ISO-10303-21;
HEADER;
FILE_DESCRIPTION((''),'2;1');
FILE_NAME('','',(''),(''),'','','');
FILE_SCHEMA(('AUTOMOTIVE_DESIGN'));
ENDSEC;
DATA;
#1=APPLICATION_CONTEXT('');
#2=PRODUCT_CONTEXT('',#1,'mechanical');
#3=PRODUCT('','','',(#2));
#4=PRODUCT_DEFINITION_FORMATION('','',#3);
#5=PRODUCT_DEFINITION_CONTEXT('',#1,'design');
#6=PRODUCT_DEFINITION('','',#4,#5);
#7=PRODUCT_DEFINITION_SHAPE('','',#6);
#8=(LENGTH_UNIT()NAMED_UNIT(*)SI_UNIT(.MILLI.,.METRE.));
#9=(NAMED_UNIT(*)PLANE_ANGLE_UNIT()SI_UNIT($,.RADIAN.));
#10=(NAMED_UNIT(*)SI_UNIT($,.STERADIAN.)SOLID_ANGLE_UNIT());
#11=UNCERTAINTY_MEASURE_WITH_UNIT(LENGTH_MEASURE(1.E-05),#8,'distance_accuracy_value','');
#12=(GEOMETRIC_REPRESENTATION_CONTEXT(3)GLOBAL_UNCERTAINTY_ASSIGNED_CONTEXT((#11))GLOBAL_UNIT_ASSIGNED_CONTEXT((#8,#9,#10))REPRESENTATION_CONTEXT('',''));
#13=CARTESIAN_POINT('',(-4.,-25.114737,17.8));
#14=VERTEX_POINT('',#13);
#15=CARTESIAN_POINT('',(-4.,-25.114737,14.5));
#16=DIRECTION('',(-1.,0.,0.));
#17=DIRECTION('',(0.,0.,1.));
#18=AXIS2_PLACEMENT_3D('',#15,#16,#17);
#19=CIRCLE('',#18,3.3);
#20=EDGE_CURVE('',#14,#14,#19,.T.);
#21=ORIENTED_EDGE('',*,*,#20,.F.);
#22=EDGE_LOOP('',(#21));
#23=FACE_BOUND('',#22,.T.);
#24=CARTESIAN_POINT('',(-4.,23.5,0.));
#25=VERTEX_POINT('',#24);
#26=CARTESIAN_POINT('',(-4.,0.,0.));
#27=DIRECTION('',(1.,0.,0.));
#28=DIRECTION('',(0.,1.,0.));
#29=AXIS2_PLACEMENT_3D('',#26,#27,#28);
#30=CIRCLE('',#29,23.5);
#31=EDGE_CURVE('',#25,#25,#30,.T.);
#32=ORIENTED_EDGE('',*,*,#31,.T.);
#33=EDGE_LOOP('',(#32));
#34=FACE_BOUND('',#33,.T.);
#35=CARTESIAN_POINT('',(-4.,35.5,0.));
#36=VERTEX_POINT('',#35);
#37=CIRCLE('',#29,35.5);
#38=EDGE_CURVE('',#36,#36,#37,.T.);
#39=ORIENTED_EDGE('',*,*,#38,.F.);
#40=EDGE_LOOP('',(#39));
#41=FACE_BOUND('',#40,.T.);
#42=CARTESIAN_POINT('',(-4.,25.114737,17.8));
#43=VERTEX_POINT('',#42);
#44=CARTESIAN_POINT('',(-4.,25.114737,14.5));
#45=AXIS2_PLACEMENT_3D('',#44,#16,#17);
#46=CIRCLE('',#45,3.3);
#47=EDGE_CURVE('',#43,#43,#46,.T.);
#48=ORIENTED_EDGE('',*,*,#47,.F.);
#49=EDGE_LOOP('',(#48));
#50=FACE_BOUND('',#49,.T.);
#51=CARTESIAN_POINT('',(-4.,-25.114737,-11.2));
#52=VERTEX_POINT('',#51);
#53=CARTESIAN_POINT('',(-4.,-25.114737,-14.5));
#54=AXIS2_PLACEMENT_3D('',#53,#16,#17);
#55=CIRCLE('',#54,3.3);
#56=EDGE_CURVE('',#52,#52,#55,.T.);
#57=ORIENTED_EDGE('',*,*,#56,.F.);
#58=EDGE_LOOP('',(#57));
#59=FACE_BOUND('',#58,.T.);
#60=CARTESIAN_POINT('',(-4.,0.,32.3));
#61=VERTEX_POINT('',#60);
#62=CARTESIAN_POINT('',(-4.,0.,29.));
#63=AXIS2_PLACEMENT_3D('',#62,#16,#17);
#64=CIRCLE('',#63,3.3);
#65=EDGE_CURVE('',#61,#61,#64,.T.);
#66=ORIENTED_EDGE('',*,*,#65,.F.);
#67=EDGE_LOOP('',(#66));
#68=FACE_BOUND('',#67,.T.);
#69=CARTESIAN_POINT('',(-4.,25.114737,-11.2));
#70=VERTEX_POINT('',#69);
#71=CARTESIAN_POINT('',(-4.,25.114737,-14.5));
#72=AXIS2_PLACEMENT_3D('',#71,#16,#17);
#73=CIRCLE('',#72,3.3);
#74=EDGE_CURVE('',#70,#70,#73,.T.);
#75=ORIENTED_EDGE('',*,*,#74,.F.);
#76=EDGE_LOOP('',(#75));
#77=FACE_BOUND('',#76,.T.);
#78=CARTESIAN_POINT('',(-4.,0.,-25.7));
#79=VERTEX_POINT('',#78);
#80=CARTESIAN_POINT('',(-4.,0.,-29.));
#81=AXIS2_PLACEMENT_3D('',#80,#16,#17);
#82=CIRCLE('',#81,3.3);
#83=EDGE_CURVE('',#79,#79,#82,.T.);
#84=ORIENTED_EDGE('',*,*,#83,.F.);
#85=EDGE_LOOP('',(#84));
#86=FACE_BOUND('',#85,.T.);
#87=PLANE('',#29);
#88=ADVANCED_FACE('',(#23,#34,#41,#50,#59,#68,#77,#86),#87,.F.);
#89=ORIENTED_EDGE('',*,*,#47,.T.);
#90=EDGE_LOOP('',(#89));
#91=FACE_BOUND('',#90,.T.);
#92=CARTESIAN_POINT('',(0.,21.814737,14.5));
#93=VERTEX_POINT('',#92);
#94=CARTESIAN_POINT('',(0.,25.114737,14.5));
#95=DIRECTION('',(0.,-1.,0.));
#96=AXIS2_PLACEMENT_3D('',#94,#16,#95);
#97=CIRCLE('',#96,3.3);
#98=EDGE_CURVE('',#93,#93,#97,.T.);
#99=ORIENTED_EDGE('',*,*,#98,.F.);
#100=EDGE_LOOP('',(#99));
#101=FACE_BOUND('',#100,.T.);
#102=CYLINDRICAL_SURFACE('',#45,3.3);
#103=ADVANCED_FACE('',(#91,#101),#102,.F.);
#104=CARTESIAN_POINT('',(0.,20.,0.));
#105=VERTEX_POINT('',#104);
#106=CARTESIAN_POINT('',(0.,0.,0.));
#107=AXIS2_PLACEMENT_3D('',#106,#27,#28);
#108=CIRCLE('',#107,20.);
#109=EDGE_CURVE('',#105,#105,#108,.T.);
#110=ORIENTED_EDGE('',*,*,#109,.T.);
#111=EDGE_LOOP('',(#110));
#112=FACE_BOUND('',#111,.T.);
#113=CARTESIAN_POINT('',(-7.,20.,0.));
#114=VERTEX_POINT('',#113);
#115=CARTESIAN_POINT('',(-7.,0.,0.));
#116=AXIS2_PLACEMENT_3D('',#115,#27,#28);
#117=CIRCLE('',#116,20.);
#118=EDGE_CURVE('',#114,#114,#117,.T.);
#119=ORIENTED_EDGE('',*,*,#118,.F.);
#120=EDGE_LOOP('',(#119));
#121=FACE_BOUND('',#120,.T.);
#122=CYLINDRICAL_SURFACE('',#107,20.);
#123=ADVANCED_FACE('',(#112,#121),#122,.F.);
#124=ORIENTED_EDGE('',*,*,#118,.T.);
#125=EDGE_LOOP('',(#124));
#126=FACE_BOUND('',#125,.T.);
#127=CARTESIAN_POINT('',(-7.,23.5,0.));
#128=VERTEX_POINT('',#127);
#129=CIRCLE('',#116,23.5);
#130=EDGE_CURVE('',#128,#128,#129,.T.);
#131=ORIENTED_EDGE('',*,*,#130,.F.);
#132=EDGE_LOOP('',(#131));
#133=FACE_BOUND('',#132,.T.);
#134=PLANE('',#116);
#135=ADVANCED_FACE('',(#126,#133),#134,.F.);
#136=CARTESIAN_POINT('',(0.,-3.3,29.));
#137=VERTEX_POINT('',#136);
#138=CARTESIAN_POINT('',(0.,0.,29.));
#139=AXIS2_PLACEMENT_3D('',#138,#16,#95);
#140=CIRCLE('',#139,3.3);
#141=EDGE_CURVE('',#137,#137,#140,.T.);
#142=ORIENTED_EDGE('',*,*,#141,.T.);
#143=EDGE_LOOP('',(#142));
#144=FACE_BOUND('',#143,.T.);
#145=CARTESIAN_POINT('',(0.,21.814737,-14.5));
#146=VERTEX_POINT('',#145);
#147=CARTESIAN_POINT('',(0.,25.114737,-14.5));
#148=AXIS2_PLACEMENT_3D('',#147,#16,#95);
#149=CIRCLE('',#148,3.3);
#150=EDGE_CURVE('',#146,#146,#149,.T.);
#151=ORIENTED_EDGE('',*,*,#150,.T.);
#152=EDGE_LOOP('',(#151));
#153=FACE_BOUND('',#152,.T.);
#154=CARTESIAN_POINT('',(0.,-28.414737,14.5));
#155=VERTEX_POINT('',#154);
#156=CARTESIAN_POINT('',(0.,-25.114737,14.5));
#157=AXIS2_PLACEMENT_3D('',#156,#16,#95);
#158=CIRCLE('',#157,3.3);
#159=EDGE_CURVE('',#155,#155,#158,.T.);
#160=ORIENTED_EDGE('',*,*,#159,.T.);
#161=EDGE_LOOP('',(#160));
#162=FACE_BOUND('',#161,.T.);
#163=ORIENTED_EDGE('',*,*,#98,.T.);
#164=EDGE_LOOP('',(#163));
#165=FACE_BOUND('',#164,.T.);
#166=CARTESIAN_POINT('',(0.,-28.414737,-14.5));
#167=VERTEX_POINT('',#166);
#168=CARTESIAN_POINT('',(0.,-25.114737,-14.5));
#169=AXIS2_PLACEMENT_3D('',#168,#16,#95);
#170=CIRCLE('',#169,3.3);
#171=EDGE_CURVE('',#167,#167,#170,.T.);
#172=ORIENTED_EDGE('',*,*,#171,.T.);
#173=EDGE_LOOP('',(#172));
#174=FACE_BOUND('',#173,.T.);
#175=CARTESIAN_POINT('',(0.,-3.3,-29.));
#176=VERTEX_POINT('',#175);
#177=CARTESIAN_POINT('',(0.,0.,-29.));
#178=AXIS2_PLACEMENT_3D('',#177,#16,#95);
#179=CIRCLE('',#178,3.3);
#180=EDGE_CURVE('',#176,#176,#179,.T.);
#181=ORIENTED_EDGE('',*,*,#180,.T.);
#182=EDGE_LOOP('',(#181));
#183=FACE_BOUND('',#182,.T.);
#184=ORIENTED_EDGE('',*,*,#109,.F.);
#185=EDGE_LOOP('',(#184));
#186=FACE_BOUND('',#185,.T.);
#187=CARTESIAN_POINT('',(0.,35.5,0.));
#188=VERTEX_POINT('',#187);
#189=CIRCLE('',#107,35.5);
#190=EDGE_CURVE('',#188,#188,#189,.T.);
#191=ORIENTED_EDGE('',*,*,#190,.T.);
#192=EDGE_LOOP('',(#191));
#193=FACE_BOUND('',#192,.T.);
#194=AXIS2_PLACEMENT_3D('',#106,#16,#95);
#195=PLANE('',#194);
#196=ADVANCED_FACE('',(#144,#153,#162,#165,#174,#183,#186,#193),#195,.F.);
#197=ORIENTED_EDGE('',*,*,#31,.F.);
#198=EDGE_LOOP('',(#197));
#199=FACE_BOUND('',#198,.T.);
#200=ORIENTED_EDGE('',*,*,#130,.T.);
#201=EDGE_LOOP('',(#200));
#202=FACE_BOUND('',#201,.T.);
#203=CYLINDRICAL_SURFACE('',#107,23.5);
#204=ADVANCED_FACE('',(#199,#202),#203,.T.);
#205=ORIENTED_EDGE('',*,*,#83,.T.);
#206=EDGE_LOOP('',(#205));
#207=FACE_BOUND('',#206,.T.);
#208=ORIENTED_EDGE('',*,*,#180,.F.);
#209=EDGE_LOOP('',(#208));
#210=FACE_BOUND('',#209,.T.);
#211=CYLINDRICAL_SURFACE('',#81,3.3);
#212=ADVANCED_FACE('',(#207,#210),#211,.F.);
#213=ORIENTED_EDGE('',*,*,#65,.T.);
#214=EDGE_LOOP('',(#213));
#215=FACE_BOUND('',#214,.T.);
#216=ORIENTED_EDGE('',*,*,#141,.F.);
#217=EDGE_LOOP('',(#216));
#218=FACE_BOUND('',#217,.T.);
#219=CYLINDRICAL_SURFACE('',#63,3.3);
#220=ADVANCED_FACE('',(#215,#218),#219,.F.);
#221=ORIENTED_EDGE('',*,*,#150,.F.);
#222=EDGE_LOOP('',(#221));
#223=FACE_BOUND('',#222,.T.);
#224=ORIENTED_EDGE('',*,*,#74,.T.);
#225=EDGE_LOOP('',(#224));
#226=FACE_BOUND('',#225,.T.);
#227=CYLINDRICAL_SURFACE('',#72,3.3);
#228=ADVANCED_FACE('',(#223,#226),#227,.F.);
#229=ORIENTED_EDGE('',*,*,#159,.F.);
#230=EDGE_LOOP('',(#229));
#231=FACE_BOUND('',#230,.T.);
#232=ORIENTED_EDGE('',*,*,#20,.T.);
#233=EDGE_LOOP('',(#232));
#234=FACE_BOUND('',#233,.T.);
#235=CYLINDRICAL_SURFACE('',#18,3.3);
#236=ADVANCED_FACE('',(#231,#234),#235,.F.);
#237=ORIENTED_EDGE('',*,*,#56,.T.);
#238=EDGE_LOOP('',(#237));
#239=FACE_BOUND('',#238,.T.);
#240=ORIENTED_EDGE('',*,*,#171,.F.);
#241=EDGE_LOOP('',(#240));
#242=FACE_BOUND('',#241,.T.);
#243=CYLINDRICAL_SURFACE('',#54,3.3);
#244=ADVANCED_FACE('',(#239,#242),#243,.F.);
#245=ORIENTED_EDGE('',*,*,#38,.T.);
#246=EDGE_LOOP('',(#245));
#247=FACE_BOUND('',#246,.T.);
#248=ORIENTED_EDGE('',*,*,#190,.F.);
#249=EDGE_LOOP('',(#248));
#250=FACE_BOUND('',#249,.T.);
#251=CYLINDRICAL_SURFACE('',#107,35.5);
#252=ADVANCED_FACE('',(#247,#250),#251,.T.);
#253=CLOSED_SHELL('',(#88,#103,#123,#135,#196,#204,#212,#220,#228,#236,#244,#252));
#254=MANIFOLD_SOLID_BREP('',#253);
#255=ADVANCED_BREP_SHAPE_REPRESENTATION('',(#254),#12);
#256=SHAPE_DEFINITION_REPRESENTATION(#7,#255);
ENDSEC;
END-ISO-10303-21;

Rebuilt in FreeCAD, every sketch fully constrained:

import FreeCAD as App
import Part
import Sketcher
from FreeCAD import Vector
Q = App.Units.Quantity

doc = App.newDocument("Part")
params = doc.addObject("Spreadsheet::Sheet", "Params")
for row, (alias, value) in enumerate([
    ("sketch1_width", "7 mm"),
    ("sketch1_width2", "4 mm"),
    ("sketch1_height", "12 mm"),
    ("sketch1_height2", "3.5 mm"),
    ("revolution_angle", "360 deg"),
    ("sketch2_diameter", "6.6 mm"),
    ("hole_diameter", "6.6 mm"),
    ("hole_depth", "4 mm"),
], start=1):
    params.set(f"A{row}", alias)
    params.set(f"B{row}", "=" + value)
    params.setAlias(f"B{row}", alias)

body = doc.addObject("PartDesign::Body", "Body")

# Sketch on XY plane
sketch1 = body.newObject("Sketcher::SketchObject", "Sketch")
sketch1.AttachmentSupport = (doc.getObject("XY_Plane"), [""])
sketch1.MapMode = "FlatFace"
sketch1.addGeometry(Part.LineSegment(Vector(-7, 23.5, 0), Vector(-7, 20, 0)), False)
sketch1.addGeometry(Part.LineSegment(Vector(-7, 20, 0), Vector(0, 20, 0)), False)
sketch1.addGeometry(Part.LineSegment(Vector(0, 20, 0), Vector(0, 35.5, 0)), False)
sketch1.addGeometry(Part.LineSegment(Vector(0, 35.5, 0), Vector(-4, 35.5, 0)), False)
sketch1.addGeometry(Part.LineSegment(Vector(-4, 35.5, 0), Vector(-4, 23.5, 0)), False)
sketch1.addGeometry(Part.LineSegment(Vector(-4, 23.5, 0), Vector(-7, 23.5, 0)), False)
sketch1.addConstraint(Sketcher.Constraint("Coincident", 0, 2, 1, 1))
sketch1.addConstraint(Sketcher.Constraint("Coincident", 1, 2, 2, 1))
sketch1.addConstraint(Sketcher.Constraint("Coincident", 2, 2, 3, 1))
sketch1.addConstraint(Sketcher.Constraint("Coincident", 3, 2, 4, 1))
sketch1.addConstraint(Sketcher.Constraint("Coincident", 4, 2, 5, 1))
sketch1.addConstraint(Sketcher.Constraint("Coincident", 5, 2, 0, 1))
sketch1.addConstraint(Sketcher.Constraint("Vertical", 0))
sketch1.addConstraint(Sketcher.Constraint("Horizontal", 1))
sketch1.addConstraint(Sketcher.Constraint("Vertical", 2))
sketch1.addConstraint(Sketcher.Constraint("Horizontal", 3))
sketch1.addConstraint(Sketcher.Constraint("Vertical", 4))
sketch1.addConstraint(Sketcher.Constraint("Horizontal", 5))
sketch1.addConstraint(Sketcher.Constraint("PointOnObject", 1, 2, -2))
sketch1.addConstraint(Sketcher.Constraint("DistanceX", 1, 1, 1, 2, Q("7 mm")))
sketch1.addConstraint(Sketcher.Constraint("DistanceX", 3, 2, 3, 1, Q("4 mm")))
sketch1.addConstraint(Sketcher.Constraint("DistanceY", 4, 2, 4, 1, Q("12 mm")))
sketch1.addConstraint(Sketcher.Constraint("DistanceY", 0, 2, 0, 1, Q("3.5 mm")))
sketch1.addConstraint(Sketcher.Constraint("DistanceY", -1, 1, 0, 2, Q("20 mm")))
sketch1.setExpression("Constraints[13]", "Params.sketch1_width")
sketch1.setExpression("Constraints[14]", "Params.sketch1_width2")
sketch1.setExpression("Constraints[15]", "Params.sketch1_height")
sketch1.setExpression("Constraints[16]", "Params.sketch1_height2")
revolution = body.newObject("PartDesign::Revolution", "Revolution")
revolution.Profile = sketch1
revolution.ReferenceAxis = (sketch1, ["H_Axis"])
revolution.setExpression("Angle", "Params.revolution_angle")

# Sketch on YZ plane
sketch2 = body.newObject("Sketcher::SketchObject", "Sketch001")
sketch2.AttachmentSupport = (doc.getObject("YZ_Plane"), [""])
sketch2.MapMode = "FlatFace"
sketch2.AttachmentOffset = App.Placement(Vector(0, 0, -4), App.Rotation())
sketch2.addGeometry(Part.Circle(Vector(0, -29, 0), Vector(0, 0, 1), 3.3), False)
sketch2.addConstraint(Sketcher.Constraint("PointOnObject", 0, 3, -2))
sketch2.addConstraint(Sketcher.Constraint("Diameter", 0, Q("6.6 mm")))
sketch2.addConstraint(Sketcher.Constraint("DistanceY", 0, 3, -1, 1, Q("29 mm")))
sketch2.setExpression("Constraints[1]", "Params.sketch2_diameter")
doc.recompute()
hole = body.newObject("PartDesign::Hole", "Hole")
hole.Profile = sketch2
hole.ThreadType = "None"
hole.setExpression("Diameter", "Params.hole_diameter")
hole.DepthType = "Dimension"
hole.setExpression("Depth", "Params.hole_depth")
hole.DrillPoint = "Flat"
hole.Reversed = True
doc.recompute()

polarpattern = body.newObject("PartDesign::PolarPattern", "PolarPattern")
polarpattern.Originals = [hole]
polarpattern.Axis = (doc.getObject("X_Axis"), [""])
polarpattern.Angle = 360
polarpattern.Occurrences = 6
body.Tip = polarpattern

doc.recompute()
